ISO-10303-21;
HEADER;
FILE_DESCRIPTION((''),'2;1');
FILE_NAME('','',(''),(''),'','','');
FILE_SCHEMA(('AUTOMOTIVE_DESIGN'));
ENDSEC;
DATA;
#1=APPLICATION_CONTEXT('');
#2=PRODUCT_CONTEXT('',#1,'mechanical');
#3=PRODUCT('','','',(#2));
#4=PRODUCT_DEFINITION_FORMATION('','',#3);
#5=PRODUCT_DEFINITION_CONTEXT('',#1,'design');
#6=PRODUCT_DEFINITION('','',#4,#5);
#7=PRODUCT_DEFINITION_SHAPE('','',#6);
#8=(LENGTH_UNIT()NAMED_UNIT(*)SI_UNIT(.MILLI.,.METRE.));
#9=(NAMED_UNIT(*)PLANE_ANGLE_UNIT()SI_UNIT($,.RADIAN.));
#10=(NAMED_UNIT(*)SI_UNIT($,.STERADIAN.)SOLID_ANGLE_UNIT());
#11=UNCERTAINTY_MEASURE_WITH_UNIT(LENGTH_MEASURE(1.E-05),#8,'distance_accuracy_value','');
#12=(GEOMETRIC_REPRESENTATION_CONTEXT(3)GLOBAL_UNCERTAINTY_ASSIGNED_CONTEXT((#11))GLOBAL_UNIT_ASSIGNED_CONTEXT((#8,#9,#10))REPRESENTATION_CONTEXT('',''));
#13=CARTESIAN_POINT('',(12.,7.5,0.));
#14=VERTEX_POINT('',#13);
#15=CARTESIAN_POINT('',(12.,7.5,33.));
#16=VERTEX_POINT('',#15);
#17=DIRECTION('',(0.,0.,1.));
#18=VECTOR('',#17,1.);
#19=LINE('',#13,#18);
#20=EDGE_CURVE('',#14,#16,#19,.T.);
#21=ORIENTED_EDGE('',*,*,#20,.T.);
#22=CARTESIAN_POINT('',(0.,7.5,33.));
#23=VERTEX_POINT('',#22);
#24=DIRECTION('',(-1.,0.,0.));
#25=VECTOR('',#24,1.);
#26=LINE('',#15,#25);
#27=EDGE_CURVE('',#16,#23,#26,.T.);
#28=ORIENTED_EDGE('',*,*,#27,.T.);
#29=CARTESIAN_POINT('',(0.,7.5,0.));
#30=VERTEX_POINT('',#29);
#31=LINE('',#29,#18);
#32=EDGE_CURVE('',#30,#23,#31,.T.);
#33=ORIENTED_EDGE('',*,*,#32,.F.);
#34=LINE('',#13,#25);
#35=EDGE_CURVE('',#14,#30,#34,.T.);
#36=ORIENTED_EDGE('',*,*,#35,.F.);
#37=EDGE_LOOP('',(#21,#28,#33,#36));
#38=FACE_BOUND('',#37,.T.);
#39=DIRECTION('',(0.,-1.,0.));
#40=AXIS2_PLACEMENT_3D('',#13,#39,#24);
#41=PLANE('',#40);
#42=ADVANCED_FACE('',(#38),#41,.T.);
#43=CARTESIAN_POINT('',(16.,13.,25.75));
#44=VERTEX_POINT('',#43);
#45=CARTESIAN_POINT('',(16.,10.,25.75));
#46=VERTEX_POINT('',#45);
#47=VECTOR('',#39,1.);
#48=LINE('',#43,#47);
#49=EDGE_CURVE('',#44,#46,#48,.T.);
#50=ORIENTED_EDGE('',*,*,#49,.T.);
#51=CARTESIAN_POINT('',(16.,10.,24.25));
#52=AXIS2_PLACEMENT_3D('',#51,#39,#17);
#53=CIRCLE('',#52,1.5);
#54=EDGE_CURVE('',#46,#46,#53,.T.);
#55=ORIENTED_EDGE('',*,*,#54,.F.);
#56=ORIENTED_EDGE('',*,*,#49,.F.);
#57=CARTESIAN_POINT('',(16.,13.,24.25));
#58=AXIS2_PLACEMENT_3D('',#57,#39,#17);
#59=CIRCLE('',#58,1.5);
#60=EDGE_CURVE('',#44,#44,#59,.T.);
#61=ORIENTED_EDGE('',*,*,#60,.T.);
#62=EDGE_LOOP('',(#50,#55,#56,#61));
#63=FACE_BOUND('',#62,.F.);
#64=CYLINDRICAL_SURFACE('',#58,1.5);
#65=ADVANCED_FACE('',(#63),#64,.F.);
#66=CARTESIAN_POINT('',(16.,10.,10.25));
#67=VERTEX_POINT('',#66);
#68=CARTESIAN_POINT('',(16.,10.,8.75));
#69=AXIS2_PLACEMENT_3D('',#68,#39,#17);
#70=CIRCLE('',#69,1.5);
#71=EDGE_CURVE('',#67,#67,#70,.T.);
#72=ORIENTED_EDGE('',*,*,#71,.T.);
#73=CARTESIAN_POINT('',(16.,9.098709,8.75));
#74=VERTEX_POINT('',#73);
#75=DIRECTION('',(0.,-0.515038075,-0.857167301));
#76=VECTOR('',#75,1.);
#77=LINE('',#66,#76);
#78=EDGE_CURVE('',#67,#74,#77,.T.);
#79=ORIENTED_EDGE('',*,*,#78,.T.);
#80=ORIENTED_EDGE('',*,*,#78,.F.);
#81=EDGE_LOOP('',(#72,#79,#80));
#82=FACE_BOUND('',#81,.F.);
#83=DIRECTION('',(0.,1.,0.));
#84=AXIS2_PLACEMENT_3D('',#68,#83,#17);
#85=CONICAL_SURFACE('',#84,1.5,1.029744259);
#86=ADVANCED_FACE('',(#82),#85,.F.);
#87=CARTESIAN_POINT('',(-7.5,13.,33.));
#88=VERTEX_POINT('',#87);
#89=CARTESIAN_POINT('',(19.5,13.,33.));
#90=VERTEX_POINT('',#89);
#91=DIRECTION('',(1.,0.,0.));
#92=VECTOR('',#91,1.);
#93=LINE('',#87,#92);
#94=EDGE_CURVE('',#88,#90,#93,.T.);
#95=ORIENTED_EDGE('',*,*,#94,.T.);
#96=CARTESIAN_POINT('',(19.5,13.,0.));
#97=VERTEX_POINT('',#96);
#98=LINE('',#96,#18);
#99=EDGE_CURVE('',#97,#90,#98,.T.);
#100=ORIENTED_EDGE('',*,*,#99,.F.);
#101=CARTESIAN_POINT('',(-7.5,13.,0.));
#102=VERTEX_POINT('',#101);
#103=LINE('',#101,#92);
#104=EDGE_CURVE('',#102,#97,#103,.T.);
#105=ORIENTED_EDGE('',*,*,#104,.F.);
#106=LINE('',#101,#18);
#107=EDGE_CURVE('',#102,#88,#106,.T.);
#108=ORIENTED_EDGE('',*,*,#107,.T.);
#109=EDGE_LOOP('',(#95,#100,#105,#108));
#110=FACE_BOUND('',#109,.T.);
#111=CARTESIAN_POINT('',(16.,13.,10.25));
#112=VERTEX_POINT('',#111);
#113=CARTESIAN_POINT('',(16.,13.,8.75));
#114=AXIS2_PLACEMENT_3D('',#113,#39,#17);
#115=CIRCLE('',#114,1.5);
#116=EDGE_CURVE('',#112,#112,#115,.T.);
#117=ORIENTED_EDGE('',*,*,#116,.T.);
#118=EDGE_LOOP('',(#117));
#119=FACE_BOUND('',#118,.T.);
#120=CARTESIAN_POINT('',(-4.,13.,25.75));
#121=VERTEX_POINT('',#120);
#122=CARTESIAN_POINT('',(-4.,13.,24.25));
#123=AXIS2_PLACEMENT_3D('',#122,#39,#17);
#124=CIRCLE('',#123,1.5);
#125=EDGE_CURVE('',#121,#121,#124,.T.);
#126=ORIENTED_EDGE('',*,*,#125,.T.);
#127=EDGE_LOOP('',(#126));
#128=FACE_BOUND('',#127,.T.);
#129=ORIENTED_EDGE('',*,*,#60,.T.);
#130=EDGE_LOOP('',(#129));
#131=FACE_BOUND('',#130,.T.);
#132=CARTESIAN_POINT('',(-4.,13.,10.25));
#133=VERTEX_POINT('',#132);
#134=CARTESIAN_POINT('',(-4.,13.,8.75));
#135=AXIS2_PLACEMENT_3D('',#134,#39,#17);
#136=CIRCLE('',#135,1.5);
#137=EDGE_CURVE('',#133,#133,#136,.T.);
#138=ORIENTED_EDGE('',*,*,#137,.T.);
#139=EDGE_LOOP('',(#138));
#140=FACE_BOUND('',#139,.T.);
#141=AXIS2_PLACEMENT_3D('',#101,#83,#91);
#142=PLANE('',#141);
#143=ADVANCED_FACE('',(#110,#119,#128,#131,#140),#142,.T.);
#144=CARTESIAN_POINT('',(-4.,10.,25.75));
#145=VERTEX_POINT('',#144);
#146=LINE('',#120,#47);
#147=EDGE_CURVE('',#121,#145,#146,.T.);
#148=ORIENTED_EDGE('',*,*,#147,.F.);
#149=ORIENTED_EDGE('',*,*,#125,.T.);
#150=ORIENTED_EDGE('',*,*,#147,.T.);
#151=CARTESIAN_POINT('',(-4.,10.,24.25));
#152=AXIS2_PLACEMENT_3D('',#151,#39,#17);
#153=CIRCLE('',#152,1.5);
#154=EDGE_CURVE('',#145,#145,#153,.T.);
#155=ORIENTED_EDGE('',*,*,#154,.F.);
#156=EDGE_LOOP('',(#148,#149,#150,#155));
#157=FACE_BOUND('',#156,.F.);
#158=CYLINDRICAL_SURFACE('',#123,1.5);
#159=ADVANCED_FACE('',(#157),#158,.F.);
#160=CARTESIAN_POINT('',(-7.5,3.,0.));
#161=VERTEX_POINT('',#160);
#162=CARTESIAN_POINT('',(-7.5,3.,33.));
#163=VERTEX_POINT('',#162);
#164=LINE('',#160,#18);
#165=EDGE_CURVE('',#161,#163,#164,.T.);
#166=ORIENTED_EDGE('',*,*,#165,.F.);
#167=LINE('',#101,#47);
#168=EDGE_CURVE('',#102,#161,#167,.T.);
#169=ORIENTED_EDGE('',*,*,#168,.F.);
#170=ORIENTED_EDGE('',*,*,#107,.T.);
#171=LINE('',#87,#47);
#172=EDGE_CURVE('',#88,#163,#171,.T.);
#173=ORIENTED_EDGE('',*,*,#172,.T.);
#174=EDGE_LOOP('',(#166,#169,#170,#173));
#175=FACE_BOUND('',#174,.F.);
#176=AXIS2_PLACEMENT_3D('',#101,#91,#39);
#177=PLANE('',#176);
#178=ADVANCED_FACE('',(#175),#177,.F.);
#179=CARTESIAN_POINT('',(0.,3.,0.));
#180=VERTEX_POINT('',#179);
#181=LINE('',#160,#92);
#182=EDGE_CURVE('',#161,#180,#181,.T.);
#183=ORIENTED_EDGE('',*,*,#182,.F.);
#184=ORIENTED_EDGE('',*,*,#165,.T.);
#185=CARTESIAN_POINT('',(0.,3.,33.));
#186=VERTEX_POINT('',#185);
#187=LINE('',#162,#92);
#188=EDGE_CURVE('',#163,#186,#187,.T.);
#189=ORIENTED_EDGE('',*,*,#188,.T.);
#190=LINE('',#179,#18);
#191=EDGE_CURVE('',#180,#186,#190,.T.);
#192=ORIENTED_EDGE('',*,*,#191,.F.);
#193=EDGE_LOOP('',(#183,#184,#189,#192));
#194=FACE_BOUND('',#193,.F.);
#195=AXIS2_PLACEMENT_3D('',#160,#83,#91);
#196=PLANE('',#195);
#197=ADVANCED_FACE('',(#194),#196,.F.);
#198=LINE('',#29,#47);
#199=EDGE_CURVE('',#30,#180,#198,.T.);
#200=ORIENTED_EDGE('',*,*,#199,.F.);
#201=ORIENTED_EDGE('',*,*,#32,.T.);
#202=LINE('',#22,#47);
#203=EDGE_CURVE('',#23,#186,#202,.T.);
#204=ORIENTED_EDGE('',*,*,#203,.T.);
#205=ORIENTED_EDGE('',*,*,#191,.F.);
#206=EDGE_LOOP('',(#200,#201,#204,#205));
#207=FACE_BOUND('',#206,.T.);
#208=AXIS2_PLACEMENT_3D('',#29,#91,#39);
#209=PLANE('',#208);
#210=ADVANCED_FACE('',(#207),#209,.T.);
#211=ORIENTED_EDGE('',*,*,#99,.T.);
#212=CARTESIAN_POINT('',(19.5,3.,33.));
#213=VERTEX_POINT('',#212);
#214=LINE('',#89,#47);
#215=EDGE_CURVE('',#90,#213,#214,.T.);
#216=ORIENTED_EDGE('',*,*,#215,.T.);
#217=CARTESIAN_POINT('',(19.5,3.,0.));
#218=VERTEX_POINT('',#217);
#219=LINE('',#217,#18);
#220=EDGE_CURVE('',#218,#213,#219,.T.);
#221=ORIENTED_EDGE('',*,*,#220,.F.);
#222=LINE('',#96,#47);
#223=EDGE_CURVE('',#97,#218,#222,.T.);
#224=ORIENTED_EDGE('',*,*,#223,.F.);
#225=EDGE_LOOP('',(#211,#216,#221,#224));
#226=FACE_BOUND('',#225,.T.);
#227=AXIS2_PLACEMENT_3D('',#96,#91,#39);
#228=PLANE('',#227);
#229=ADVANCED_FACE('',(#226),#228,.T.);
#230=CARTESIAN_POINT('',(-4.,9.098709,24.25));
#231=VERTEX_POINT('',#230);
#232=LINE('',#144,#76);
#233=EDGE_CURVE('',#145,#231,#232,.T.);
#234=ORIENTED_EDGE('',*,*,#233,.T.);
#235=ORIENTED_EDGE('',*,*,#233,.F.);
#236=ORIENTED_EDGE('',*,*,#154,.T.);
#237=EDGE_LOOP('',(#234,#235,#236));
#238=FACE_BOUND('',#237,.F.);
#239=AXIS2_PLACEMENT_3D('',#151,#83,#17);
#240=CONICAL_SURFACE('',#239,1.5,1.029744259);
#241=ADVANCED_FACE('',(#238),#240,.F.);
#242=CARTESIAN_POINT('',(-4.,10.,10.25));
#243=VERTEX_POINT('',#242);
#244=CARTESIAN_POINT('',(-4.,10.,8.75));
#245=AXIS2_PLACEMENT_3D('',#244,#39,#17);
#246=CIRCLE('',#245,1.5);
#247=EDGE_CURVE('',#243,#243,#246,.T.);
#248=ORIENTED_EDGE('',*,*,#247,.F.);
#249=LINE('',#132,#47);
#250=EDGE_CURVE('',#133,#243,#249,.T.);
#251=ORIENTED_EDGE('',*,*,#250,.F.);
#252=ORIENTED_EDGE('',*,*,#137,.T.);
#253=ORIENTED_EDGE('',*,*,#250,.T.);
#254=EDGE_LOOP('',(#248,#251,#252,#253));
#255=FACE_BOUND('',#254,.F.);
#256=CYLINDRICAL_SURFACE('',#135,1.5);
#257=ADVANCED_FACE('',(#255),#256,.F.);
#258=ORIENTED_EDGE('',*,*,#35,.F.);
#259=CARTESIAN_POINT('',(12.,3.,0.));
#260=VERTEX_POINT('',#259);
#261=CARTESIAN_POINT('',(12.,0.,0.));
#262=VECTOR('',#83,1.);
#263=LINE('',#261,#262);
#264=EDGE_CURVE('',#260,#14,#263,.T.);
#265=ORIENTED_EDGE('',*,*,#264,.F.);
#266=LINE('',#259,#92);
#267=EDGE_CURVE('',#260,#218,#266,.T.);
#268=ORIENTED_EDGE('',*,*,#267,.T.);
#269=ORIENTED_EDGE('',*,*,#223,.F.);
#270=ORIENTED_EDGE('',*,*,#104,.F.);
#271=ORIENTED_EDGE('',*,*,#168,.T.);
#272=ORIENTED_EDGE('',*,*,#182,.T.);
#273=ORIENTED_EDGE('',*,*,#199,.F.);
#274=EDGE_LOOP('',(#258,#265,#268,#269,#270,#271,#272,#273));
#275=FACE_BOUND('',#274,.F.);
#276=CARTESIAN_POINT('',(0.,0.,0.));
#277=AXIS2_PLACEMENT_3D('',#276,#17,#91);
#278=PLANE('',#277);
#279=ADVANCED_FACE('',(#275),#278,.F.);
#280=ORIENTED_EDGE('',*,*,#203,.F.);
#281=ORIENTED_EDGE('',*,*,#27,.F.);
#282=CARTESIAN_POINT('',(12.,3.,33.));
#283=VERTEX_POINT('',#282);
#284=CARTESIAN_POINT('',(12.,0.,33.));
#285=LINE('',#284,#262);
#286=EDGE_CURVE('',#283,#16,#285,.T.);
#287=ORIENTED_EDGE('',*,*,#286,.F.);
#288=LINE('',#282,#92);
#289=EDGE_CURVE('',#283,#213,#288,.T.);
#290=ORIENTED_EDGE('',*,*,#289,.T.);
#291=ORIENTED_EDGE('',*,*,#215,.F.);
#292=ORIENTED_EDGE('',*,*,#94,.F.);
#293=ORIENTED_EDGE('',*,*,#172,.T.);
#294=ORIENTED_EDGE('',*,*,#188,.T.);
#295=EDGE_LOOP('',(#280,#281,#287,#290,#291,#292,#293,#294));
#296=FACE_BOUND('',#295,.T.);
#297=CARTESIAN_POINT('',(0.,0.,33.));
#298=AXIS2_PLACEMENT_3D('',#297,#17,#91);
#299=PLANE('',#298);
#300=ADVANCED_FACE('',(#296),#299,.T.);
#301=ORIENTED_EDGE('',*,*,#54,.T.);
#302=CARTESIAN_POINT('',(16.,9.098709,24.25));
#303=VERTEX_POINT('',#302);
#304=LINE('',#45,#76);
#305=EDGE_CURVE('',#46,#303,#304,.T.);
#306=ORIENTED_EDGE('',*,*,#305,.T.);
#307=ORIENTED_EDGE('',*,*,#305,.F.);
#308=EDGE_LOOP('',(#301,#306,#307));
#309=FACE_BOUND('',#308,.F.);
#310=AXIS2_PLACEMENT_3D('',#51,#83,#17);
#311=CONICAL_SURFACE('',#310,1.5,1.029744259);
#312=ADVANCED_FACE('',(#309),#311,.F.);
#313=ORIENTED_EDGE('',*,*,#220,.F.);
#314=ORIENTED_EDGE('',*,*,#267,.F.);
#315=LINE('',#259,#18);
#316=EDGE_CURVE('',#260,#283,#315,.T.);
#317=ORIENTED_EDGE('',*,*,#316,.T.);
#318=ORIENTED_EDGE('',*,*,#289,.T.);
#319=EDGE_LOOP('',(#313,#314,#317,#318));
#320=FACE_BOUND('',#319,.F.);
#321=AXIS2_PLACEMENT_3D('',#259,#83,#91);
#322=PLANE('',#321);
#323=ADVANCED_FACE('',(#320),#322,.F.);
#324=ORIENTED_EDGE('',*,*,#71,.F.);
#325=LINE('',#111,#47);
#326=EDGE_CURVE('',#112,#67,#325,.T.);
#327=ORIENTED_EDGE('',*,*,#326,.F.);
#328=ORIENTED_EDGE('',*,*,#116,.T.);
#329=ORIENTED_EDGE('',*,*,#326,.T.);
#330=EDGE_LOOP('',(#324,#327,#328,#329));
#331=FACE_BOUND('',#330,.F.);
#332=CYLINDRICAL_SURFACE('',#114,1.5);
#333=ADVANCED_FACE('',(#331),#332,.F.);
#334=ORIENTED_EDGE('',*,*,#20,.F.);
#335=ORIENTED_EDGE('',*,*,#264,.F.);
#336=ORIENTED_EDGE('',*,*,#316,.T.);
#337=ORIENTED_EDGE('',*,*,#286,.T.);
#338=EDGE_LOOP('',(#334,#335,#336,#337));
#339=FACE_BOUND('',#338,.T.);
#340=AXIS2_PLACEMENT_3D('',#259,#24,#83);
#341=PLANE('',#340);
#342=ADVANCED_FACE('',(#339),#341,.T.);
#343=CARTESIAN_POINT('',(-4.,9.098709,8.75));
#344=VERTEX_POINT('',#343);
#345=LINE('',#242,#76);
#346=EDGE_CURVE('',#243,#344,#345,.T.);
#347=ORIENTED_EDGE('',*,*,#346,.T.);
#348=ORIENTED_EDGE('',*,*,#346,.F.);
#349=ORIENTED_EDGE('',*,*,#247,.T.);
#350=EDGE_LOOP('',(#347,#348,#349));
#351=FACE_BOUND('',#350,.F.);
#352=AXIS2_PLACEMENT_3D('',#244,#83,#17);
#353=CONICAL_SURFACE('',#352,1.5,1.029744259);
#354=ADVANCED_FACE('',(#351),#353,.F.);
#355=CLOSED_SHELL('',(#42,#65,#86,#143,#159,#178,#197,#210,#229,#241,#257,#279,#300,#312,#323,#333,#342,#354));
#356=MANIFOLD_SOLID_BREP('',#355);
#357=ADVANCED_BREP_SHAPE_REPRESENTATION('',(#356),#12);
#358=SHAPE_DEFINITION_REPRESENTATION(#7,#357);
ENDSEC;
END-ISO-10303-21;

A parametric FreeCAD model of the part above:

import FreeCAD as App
import Part
import Sketcher
from FreeCAD import Vector

doc = App.newDocument("Part")
body = doc.addObject("PartDesign::Body", "Body")

# Sketch on XY plane
sketch1 = body.newObject("Sketcher::SketchObject", "Sketch")
sketch1.AttachmentSupport = (doc.getObject("XY_Plane"), [""])
sketch1.MapMode = "FlatFace"
sketch1.addGeometry([
    Part.LineSegment(Vector(-7.5, 3, 0), Vector(0, 3, 0)),  # 0
    Part.LineSegment(Vector(0, 3, 0), Vector(0, 7.5, 0)),  # 1
    Part.LineSegment(Vector(0, 7.5, 0), Vector(12, 7.5, 0)),  # 2
    Part.LineSegment(Vector(12, 7.5, 0), Vector(12, 3, 0)),  # 3
    Part.LineSegment(Vector(12, 3, 0), Vector(19.5, 3, 0)),  # 4
    Part.LineSegment(Vector(19.5, 3, 0), Vector(19.5, 13, 0)),  # 5
    Part.LineSegment(Vector(19.5, 13, 0), Vector(-7.5, 13, 0)),  # 6
    Part.LineSegment(Vector(-7.5, 13, 0), Vector(-7.5, 3, 0)),  # 7
], False)
sketch1.addConstraint([
    Sketcher.Constraint("Coincident", 0, 2, 1, 1),
    Sketcher.Constraint("Coincident", 1, 2, 2, 1),
    Sketcher.Constraint("Coincident", 2, 2, 3, 1),
    Sketcher.Constraint("Coincident", 3, 2, 4, 1),
    Sketcher.Constraint("Coincident", 4, 2, 5, 1),
    Sketcher.Constraint("Coincident", 5, 2, 6, 1),
    Sketcher.Constraint("Coincident", 6, 2, 7, 1),
    Sketcher.Constraint("Coincident", 7, 2, 0, 1),
    Sketcher.Constraint("Horizontal", 0),
    Sketcher.Constraint("Vertical", 1),
    Sketcher.Constraint("Horizontal", 2),
    Sketcher.Constraint("Vertical", 3),
    Sketcher.Constraint("Horizontal", 4),
    Sketcher.Constraint("Vertical", 5),
    Sketcher.Constraint("Horizontal", 6),
    Sketcher.Constraint("Vertical", 7),
    Sketcher.Constraint("PointOnObject", 0, 2, -2),
    Sketcher.Constraint("Horizontal", 0, 2, 3, 2),
    Sketcher.Constraint("Equal", 0, 4),
    Sketcher.Constraint("DistanceX", 2, 1, 2, 2, 12.0),
    Sketcher.Constraint("DistanceX", 6, 2, 6, 1, 27.0),
    Sketcher.Constraint("DistanceY", 5, 1, 5, 2, 10.0),
    Sketcher.Constraint("DistanceY", -1, 1, 5, 2, 13.0),
    Sketcher.Constraint("DistanceY", -1, 1, 1, 2, 7.5),
])
pad1 = body.newObject("PartDesign::Pad", "Pad")
pad1.Profile = sketch1
pad1.Length = 33

# Sketch on XZ plane
sketch2 = body.newObject("Sketcher::SketchObject", "Sketch001")
sketch2.AttachmentSupport = (doc.getObject("XZ_Plane"), [""])
sketch2.MapMode = "FlatFace"
sketch2.AttachmentOffset = App.Placement(Vector(0, 0, -13), App.Rotation())
sketch2.addGeometry([
    Part.Circle(Vector(-4, 24.2, 0), Vector(0, 0, 1), 1.5),
    Part.Circle(Vector(-4, 8.8, 0), Vector(0, 0, 1), 1.5),
    Part.Circle(Vector(16, 24.2, 0), Vector(0, 0, 1), 1.5),
    Part.Circle(Vector(16, 8.8, 0), Vector(0, 0, 1), 1.5),
], False)
sketch2.addConstraint([
    Sketcher.Constraint("Equal", 0, 1),
    Sketcher.Constraint("Equal", 1, 2),
    Sketcher.Constraint("Equal", 2, 3),
    Sketcher.Constraint("Horizontal", 0, 3, 2, 3),
    Sketcher.Constraint("Horizontal", 1, 3, 3, 3),
    Sketcher.Constraint("Vertical", 0, 3, 1, 3),
    Sketcher.Constraint("Vertical", 2, 3, 3, 3),
    Sketcher.Constraint("Diameter", 0, 3.0),
    Sketcher.Constraint("DistanceX", 0, 3, -1, 1, 4.0),
    Sketcher.Constraint("DistanceX", -1, 1, 2, 3, 16.0),
    Sketcher.Constraint("DistanceY", 1, 3, 0, 3, 15.5),
    Sketcher.Constraint("DistanceY", -1, 1, 0, 3, 24.25),
])
doc.recompute()
hole = body.newObject("PartDesign::Hole", "Hole")
hole.Profile = sketch2
hole.ThreadType = "None"
hole.Diameter = 3
hole.DepthType = "Dimension"
hole.Depth = 3
hole.DrillPoint = "Angled"
hole.DrillPointAngle = 118
hole.Reversed = True

doc.recompute()
